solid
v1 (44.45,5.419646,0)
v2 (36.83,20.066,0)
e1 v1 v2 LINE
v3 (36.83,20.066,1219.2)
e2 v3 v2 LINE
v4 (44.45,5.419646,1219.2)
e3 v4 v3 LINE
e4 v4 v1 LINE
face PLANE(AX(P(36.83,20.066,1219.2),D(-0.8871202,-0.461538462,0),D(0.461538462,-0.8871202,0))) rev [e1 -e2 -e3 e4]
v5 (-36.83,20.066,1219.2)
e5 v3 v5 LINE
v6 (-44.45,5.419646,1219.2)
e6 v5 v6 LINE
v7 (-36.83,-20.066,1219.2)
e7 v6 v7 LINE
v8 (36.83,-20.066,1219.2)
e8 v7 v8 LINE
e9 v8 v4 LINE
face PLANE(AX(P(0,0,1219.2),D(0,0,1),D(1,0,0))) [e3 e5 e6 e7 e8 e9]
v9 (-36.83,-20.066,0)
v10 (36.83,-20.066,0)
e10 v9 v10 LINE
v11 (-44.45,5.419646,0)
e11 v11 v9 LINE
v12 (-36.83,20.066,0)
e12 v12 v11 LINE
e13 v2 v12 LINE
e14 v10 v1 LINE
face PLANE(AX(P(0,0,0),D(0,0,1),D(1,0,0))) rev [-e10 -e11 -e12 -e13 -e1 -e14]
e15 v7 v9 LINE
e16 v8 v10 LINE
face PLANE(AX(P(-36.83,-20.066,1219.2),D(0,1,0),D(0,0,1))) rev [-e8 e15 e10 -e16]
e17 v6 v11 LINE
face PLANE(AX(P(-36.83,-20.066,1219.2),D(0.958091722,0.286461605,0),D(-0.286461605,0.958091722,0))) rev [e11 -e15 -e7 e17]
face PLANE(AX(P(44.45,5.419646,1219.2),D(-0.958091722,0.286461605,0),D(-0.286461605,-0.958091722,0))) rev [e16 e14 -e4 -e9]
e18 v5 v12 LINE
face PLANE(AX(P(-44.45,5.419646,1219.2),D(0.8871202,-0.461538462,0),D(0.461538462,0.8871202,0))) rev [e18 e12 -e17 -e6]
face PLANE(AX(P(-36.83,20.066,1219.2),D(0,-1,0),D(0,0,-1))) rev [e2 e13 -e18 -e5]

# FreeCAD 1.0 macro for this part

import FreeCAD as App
import Part
import Sketcher

V = App.Vector
Q = App.Units.Quantity

doc = App.newDocument("Part")
body = doc.addObject("PartDesign::Body", "Body")

# Sketch on XY plane
sketch1 = body.newObject("Sketcher::SketchObject", "Sketch")
sketch1.AttachmentSupport = (doc.getObject("XY_Plane"), [""])
sketch1.MapMode = "FlatFace"
sketch1.addGeometry(Part.LineSegment(V(-44.45, 5.419646, 0), V(-36.83, -20.066, 0)), False)
sketch1.addGeometry(Part.LineSegment(V(-36.83, -20.066, 0), V(36.83, -20.066, 0)), False)
sketch1.addGeometry(Part.LineSegment(V(36.83, -20.066, 0), V(44.45, 5.419646, 0)), False)
sketch1.addGeometry(Part.LineSegment(V(44.45, 5.419646, 0), V(36.83, 20.066, 0)), False)
sketch1.addGeometry(Part.LineSegment(V(36.83, 20.066, 0), V(-36.83, 20.066, 0)), False)
sketch1.addGeometry(Part.LineSegment(V(-36.83, 20.066, 0), V(-44.45, 5.419646, 0)), False)
sketch1.addConstraint(Sketcher.Constraint("Coincident", 0, 2, 1, 1))
sketch1.addConstraint(Sketcher.Constraint("Coincident", 1, 2, 2, 1))
sketch1.addConstraint(Sketcher.Constraint("Coincident", 2, 2, 3, 1))
sketch1.addConstraint(Sketcher.Constraint("Coincident", 3, 2, 4, 1))
sketch1.addConstraint(Sketcher.Constraint("Coincident", 4, 2, 5, 1))
sketch1.addConstraint(Sketcher.Constraint("Coincident", 5, 2, 0, 1))
sketch1.addConstraint(Sketcher.Constraint("Horizontal", 1))
sketch1.addConstraint(Sketcher.Constraint("Horizontal", 4))
sketch1.addConstraint(Sketcher.Constraint("Symmetric", 0, 2, 3, 2, -1, 1))
sketch1.addConstraint(Sketcher.Constraint("Symmetric", 2, 2, 5, 2, -2))
sketch1.addConstraint(Sketcher.Constraint("Vertical", 1, 2, 3, 2))
sketch1.addConstraint(Sketcher.Constraint("Vertical", 0, 2, 4, 2))
sketch1.addConstraint(Sketcher.Constraint("DistanceX", 1, 1, 1, 2, Q("2.9 in")))
sketch1.addConstraint(Sketcher.Constraint("DistanceX", 1, 2, 2, 2, Q("0.3 in")))
sketch1.addConstraint(Sketcher.Constraint("Distance", 3, Q("0.65 in")))
sketch1.addConstraint(Sketcher.Constraint("DistanceY", 0, 2, -1, 1, Q("0.79 in")))
pad1 = body.newObject("PartDesign::Pad", "Pad")
pad1.Profile = sketch1
pad1.Length = Q("48 in")

doc.recompute()
